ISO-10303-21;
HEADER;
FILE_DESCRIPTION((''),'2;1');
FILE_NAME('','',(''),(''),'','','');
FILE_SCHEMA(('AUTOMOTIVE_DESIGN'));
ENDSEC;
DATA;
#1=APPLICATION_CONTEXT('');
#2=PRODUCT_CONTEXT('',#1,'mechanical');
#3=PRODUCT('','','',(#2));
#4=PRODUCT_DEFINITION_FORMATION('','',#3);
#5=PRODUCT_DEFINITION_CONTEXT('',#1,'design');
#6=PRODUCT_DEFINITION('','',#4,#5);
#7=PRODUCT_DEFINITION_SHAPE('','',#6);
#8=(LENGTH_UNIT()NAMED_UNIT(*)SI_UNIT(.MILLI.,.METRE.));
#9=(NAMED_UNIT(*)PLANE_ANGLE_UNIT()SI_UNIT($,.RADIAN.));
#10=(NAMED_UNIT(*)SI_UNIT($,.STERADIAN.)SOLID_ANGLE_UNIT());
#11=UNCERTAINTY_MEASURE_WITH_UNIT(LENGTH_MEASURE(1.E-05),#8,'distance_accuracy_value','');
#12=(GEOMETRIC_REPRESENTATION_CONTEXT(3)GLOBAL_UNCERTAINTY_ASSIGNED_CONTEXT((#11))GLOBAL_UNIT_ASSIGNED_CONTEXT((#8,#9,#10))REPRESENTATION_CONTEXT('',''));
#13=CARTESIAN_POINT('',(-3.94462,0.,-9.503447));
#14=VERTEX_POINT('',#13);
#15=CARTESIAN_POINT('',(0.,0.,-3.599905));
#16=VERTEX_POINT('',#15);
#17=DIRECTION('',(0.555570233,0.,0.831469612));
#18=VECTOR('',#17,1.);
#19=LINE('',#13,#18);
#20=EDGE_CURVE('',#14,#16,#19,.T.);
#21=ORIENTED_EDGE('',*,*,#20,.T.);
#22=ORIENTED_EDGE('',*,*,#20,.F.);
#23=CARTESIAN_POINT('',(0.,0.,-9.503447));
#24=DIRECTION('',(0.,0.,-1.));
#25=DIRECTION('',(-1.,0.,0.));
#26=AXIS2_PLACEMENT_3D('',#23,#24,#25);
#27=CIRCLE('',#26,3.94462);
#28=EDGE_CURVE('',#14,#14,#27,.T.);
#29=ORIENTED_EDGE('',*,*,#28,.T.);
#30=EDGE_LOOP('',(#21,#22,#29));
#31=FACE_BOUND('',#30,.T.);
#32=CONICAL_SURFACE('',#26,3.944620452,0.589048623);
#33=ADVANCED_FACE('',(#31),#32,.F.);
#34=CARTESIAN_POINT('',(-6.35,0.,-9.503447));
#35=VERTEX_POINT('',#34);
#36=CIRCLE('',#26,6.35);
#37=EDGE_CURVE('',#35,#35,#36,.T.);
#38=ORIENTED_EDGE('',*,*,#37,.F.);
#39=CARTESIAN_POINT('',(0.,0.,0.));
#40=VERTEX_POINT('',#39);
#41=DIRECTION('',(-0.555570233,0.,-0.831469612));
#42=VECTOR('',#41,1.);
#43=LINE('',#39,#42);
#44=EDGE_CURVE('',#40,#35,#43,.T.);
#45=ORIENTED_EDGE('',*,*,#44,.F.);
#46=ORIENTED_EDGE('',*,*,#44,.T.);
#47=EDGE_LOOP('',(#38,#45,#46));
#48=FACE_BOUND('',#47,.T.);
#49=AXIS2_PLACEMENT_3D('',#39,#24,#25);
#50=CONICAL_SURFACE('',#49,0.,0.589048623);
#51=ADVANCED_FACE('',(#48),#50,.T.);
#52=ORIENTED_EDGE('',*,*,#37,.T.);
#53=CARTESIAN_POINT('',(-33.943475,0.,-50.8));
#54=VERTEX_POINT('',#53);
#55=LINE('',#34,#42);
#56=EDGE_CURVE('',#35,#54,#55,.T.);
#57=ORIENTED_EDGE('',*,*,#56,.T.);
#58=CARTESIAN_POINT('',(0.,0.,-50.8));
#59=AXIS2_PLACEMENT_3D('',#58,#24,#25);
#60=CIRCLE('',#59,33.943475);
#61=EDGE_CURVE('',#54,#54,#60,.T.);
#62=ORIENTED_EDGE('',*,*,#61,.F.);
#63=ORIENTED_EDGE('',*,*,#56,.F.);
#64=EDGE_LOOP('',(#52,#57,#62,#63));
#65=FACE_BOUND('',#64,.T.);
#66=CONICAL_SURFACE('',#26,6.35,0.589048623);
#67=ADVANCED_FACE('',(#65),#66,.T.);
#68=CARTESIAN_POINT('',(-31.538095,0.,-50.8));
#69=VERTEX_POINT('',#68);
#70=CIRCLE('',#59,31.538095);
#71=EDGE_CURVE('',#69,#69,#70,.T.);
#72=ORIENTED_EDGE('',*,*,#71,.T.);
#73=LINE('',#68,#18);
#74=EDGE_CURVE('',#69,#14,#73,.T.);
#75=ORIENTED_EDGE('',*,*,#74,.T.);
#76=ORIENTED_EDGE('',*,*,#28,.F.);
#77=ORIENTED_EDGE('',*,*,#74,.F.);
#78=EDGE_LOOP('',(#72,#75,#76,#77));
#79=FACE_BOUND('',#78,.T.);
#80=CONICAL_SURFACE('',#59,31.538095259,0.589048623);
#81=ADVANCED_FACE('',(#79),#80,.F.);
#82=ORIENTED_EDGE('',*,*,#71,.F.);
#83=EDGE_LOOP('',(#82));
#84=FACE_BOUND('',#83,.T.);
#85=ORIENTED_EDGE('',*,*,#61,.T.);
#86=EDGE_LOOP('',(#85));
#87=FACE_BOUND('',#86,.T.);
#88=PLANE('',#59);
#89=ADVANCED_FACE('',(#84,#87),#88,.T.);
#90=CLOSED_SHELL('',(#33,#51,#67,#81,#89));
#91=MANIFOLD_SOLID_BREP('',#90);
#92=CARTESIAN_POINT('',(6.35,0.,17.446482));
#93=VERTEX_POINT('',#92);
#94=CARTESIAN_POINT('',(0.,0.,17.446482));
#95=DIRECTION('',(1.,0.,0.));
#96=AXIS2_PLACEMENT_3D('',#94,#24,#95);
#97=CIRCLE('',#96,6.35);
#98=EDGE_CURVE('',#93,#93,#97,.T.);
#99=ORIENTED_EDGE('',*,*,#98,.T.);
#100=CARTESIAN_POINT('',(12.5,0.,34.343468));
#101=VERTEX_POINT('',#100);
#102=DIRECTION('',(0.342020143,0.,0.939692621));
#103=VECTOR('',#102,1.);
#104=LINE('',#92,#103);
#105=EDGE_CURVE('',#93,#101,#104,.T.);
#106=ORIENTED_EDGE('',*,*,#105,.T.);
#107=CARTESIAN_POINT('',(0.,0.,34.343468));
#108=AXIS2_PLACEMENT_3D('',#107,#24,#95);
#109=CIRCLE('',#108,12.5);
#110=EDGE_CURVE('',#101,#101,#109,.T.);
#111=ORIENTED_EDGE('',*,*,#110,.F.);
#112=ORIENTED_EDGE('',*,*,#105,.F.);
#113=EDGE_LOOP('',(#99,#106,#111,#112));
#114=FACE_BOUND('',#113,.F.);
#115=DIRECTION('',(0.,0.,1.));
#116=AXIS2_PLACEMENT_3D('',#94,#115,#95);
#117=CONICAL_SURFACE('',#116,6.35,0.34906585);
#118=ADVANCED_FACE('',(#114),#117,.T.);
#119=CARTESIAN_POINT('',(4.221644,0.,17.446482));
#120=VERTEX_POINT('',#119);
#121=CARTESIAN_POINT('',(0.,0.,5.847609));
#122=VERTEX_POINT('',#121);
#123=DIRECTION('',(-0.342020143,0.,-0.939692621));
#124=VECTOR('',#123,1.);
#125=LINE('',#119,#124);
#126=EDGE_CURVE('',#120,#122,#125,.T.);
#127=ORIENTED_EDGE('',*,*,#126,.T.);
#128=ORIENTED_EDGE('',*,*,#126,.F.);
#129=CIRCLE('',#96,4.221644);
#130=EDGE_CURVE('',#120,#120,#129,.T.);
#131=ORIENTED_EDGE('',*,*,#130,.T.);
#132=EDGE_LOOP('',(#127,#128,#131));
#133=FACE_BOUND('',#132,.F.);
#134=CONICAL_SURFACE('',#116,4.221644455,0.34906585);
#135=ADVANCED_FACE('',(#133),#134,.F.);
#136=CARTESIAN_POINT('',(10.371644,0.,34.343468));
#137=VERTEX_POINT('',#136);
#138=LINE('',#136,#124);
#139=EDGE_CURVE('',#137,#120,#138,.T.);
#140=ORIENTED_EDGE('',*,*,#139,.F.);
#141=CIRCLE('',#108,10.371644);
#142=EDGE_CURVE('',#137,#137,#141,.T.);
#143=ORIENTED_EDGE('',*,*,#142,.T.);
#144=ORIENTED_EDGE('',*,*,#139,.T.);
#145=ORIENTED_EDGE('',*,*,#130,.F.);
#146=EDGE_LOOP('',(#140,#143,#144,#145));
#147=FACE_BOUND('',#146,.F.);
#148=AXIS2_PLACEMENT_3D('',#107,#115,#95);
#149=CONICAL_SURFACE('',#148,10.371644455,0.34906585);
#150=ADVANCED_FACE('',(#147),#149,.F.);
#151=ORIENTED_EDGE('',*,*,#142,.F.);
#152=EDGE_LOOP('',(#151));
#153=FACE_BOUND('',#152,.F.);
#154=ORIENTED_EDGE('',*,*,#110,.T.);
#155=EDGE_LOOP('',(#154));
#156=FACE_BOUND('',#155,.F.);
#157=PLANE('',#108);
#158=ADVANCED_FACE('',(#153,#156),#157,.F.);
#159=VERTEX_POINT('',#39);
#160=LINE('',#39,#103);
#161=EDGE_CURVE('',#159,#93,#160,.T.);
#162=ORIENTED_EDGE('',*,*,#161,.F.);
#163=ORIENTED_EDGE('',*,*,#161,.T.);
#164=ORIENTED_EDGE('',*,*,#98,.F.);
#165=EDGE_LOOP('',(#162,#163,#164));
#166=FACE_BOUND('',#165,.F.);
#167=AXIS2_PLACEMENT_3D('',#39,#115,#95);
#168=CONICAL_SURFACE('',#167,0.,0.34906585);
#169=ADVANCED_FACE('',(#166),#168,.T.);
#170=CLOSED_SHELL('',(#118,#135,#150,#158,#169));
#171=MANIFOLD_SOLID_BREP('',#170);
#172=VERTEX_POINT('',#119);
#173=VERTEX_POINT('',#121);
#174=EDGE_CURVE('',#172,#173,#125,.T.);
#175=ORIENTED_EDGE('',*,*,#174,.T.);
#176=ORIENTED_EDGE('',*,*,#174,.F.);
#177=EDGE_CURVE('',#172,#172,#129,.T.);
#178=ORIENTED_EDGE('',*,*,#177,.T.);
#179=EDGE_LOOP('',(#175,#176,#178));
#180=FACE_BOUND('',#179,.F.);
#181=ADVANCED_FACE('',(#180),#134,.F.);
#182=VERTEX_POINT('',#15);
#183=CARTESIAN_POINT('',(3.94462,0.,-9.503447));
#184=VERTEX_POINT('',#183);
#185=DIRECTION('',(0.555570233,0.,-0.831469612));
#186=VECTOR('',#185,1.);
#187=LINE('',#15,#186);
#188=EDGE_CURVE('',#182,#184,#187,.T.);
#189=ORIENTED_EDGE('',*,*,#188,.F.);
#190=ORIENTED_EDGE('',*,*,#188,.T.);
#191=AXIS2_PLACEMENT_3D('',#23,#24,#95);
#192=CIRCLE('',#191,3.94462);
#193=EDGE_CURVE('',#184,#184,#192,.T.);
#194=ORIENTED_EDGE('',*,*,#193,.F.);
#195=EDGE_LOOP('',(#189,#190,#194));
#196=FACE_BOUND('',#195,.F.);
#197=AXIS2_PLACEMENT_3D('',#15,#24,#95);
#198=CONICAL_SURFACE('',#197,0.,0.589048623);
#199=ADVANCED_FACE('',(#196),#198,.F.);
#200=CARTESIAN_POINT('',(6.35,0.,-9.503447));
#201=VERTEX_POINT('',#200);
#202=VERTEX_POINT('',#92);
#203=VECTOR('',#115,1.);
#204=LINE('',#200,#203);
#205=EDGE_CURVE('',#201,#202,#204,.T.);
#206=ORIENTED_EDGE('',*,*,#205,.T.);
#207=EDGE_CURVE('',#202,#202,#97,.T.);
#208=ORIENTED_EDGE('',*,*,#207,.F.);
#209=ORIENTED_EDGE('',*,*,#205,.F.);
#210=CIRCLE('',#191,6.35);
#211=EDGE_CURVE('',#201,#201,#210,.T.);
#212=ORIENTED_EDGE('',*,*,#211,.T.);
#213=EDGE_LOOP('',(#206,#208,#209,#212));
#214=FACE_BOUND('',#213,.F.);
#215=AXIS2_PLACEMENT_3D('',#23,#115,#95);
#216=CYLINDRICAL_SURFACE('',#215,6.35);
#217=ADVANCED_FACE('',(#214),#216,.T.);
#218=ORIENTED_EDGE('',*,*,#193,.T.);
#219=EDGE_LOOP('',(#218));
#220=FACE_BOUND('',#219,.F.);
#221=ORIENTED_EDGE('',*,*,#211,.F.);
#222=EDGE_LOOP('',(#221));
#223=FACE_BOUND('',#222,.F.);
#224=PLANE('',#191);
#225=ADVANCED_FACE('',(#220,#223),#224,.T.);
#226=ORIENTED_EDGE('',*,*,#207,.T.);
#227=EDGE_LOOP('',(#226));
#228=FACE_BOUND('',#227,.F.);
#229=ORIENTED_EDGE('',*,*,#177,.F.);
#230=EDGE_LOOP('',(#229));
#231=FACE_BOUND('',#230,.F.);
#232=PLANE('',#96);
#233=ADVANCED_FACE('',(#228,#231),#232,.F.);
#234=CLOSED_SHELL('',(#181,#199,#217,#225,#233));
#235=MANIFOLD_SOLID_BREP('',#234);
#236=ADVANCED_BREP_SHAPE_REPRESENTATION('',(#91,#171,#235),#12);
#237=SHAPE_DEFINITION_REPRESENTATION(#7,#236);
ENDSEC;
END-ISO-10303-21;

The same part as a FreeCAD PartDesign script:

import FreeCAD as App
import Part
import Sketcher
Q = App.Units.Quantity


def add_polygon(sketch, points):
    """Adds a closed chain of lines whose ends are joined by coincident constraints."""
    first, n = sketch.GeometryCount, len(points)
    for a, b in zip(points, points[1:] + points[:1]):
        sketch.addGeometry(Part.LineSegment(App.Vector(*a, 0), App.Vector(*b, 0)), False)
    for i in range(n):
        sketch.addConstraint(Sketcher.Constraint("Coincident", first + i, 2, first + (i + 1) % n, 1))

doc = App.newDocument("Part")
body = doc.addObject("PartDesign::Body", "Body")

# Sketch on XZ plane
sketch1 = body.newObject("Sketcher::SketchObject", "Sketch")
sketch1.AttachmentSupport = (doc.getObject("XZ_Plane"), [""])
sketch1.MapMode = "FlatFace"
add_polygon(sketch1, [(6.35, 17.446482), (12.5, 34.343468), (10.371644, 34.343468), (4.221644, 17.446482), (0, 5.847609), (0, 0)])  # lines 0-5
sketch1.addConstraint([
    Sketcher.Constraint("Horizontal", 1),
    Sketcher.Constraint("Vertical", 4),
    Sketcher.Constraint("Coincident", 4, 2, -1, 1),
    Sketcher.Constraint("Parallel", 0, 2),
    Sketcher.Constraint("Parallel", 2, 3),
    Sketcher.Constraint("Parallel", 3, 5),
    Sketcher.Constraint("Horizontal", 2, 2, 5, 2),
    Sketcher.Constraint("Angle", 0, Q("70 deg")),
    Sketcher.Constraint("DistanceX", -1, 1, 0, 2, Q("12.5 mm")),
    Sketcher.Constraint("DistanceX", -1, 1, 5, 2, Q("6.35 mm")),
    Sketcher.Constraint("DistanceY", 4, 2, 4, 1, Q("5.847609 mm")),
])
revolution = body.newObject("PartDesign::Revolution", "Revolution")
revolution.Profile = sketch1
revolution.ReferenceAxis = (sketch1, ["V_Axis"])
revolution.Angle = 360
body2 = doc.addObject("PartDesign::Body", "Body001")

# Sketch on XZ plane
sketch2 = body2.newObject("Sketcher::SketchObject", "Sketch001")
sketch2.AttachmentSupport = (doc.getObject("XZ_Plane001"), [""])
sketch2.MapMode = "FlatFace"
add_polygon(sketch2, [(-6.35, -9.503447), (-33.943475, -50.8), (-31.538095, -50.8), (-3.94462, -9.503447), (0, -3.599905), (0, 0)])  # lines 0-5
sketch2.addConstraint([
    Sketcher.Constraint("Horizontal", 1),
    Sketcher.Constraint("Vertical", 4),
    Sketcher.Constraint("Coincident", 4, 2, -1, 1),
    Sketcher.Constraint("Parallel", 0, 2),
    Sketcher.Constraint("Parallel", 2, 3),
    Sketcher.Constraint("Parallel", 3, 5),
    Sketcher.Constraint("Horizontal", 2, 2, 5, 2),
    Sketcher.Constraint("DistanceY", 0, 2, -1, 1, Q("50.8 mm")),
    Sketcher.Constraint("Angle", 0, Q("-123.75 deg")),
    Sketcher.Constraint("DistanceX", 5, 2, -1, 1, Q("6.35 mm")),
    Sketcher.Constraint("DistanceX", 1, 1, 1, 2, Q("2.40538 mm")),
])
revolution2 = body2.newObject("PartDesign::Revolution", "Revolution001")
revolution2.Profile = sketch2
revolution2.ReferenceAxis = (sketch2, ["V_Axis"])
revolution2.Angle = 360
body3 = doc.addObject("PartDesign::Body", "Body002")

# Sketch on XZ plane
sketch3 = body3.newObject("Sketcher::SketchObject", "Sketch002")
sketch3.AttachmentSupport = (doc.getObject("XZ_Plane002"), [""])
sketch3.MapMode = "FlatFace"
add_polygon(sketch3, [(6.35, -9.503447), (6.35, 17.446482), (4.221644, 17.446482), (0, 5.847609), (0, -3.599905), (3.94462, -9.503447)])  # lines 0-5
sketch3.addConstraint([
    Sketcher.Constraint("Vertical", 0),
    Sketcher.Constraint("Horizontal", 1),
    Sketcher.Constraint("Vertical", 3),
    Sketcher.Constraint("Horizontal", 5),
    Sketcher.Constraint("PointOnObject", 2, 2, -2),
    Sketcher.Constraint("Angle", 2, Q("-110 deg")),
    Sketcher.Constraint("Angle", 4, Q("-56.25 deg")),
    Sketcher.Constraint("DistanceX", -1, 1, 0, 2, Q("6.35 mm")),
    Sketcher.Constraint("DistanceX", 5, 1, 5, 2, Q("2.40538 mm")),
    Sketcher.Constraint("DistanceY", 0, 1, 0, 2, Q("26.949928 mm")),
    Sketcher.Constraint("DistanceX", 1, 2, 1, 1, Q("2.128356 mm")),
    Sketcher.Constraint("DistanceY", -1, 1, 0, 2, Q("17.446482 mm")),
])
revolution3 = body3.newObject("PartDesign::Revolution", "Revolution002")
revolution3.Profile = sketch3
revolution3.ReferenceAxis = (sketch3, ["V_Axis"])
revolution3.Angle = 360

doc.recompute()
